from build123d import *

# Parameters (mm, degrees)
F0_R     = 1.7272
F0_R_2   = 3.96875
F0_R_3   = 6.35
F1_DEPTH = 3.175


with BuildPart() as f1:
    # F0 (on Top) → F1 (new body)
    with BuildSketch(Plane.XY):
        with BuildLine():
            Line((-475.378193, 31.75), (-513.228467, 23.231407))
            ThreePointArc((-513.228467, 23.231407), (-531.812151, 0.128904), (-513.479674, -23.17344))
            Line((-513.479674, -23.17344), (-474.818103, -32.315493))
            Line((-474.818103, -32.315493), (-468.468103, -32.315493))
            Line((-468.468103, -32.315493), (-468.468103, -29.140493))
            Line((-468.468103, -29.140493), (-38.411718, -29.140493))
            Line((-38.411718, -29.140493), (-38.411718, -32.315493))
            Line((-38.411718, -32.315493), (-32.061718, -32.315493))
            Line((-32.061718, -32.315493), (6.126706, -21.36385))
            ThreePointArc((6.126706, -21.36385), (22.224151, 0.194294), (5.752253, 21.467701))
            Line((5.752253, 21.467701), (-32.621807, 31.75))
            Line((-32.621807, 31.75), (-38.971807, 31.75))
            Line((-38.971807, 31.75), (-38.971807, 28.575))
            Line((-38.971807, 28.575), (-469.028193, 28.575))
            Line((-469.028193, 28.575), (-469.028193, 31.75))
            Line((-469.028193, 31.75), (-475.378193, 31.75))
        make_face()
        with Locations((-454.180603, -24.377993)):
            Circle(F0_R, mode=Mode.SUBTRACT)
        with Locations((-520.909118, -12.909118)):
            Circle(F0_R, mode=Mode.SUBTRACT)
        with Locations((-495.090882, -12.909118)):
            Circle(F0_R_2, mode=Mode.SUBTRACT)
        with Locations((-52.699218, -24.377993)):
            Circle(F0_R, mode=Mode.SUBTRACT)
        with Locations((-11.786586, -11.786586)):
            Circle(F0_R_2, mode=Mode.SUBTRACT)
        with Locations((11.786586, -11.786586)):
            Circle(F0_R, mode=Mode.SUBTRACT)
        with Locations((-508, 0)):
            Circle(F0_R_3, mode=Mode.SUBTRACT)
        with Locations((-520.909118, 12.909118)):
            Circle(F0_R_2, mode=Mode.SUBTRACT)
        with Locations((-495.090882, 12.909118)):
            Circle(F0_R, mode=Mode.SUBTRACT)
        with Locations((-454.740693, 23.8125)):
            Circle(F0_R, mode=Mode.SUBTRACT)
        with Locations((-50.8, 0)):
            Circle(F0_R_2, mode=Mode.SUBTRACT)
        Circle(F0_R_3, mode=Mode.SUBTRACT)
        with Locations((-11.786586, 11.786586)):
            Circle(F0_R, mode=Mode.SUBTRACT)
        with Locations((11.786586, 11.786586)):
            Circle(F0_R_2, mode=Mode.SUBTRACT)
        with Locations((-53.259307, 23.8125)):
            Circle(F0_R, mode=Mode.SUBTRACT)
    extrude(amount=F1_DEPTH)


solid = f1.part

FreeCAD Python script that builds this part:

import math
import FreeCAD as App
import Part
import Sketcher

V = App.Vector
Q = App.Units.Quantity

doc = App.newDocument("Part")
body = doc.addObject("PartDesign::Body", "Body")

sketch1 = doc.addObject("Sketcher::SketchObject", "Sketch")
body.addObject(sketch1)
sketch1.AttachmentSupport = (doc.XY_Plane, [""])
sketch1.MapMode = "FlatFace"
sketch1.addGeometry([
    Part.LineSegment(V(-475.4, 31.8, 0), V(-513.2, 23.2, 0)),
    Part.ArcOfCircle(Part.Circle(V(-508, 0, 0), V(0, 0, 1), 23.8), math.radians(103), math.radians(257)),
    Part.LineSegment(V(-513.5, -23.2, 0), V(-474.8, -32.3, 0)),
    Part.LineSegment(V(-474.8, -32.3, 0), V(-468.5, -32.3, 0)),
    Part.LineSegment(V(-468.5, -32.3, 0), V(-468.5, -29.1, 0)),
    Part.LineSegment(V(-468.5, -29.1, 0), V(-38.4, -29.1, 0)),
    Part.LineSegment(V(-38.4, -29.1, 0), V(-38.4, -32.3, 0)),
    Part.LineSegment(V(-38.4, -32.3, 0), V(-32.1, -32.3, 0)),
    Part.LineSegment(V(-32.1, -32.3, 0), V(6.1, -21.4, 0)),
    Part.ArcOfCircle(Part.Circle(V(0, 0, 0), V(0, 0, 1), 22.2), math.radians(-74), math.radians(75)),
    Part.LineSegment(V(5.8, 21.5, 0), V(-32.6, 31.8, 0)),
    Part.LineSegment(V(-32.6, 31.8, 0), V(-39, 31.8, 0)),
    Part.LineSegment(V(-39, 31.8, 0), V(-39, 28.6, 0)),
    Part.LineSegment(V(-39, 28.6, 0), V(-469, 28.6, 0)),
    Part.LineSegment(V(-469, 28.6, 0), V(-469, 31.8, 0)),
    Part.LineSegment(V(-469, 31.8, 0), V(-475.4, 31.8, 0)),
    Part.Circle(V(-454.2, -24.4, 0), V(0, 0, 1), 1.7),
    Part.Circle(V(-520.9, -12.9, 0), V(0, 0, 1), 1.7),
    Part.Circle(V(-495.1, -12.9, 0), V(0, 0, 1), 4),
    Part.Circle(V(-52.7, -24.4, 0), V(0, 0, 1), 1.7),
    Part.Circle(V(-11.8, -11.8, 0), V(0, 0, 1), 4),
    Part.Circle(V(11.8, -11.8, 0), V(0, 0, 1), 1.7),
    Part.Circle(V(-508, 0, 0), V(0, 0, 1), 6.3),
    Part.Circle(V(-520.9, 12.9, 0), V(0, 0, 1), 4),
    Part.Circle(V(-495.1, 12.9, 0), V(0, 0, 1), 1.7),
    Part.Circle(V(-454.7, 23.8, 0), V(0, 0, 1), 1.7),
    Part.Circle(V(-50.8, 0, 0), V(0, 0, 1), 4),
    Part.Circle(V(0, 0, 0), V(0, 0, 1), 6.3),
    Part.Circle(V(-11.8, 11.8, 0), V(0, 0, 1), 1.7),
    Part.Circle(V(11.8, 11.8, 0), V(0, 0, 1), 4),
    Part.Circle(V(-53.3, 23.8, 0), V(0, 0, 1), 1.7),
], False)
sketch1.addConstraint([
    Sketcher.Constraint("Tangent", 0, 2, 1, 1),
    Sketcher.Constraint("Tangent", 1, 2, 2, 1),
    Sketcher.Constraint("Coincident", 2, 2, 3, 1),
    Sketcher.Constraint("Coincident", 3, 2, 4, 1),
    Sketcher.Constraint("Coincident", 4, 2, 5, 1),
    Sketcher.Constraint("Coincident", 5, 2, 6, 1),
    Sketcher.Constraint("Coincident", 6, 2, 7, 1),
    Sketcher.Constraint("Coincident", 7, 2, 8, 1),
    Sketcher.Constraint("Tangent", 8, 2, 9, 1),
    Sketcher.Constraint("Tangent", 9, 2, 10, 1),
    Sketcher.Constraint("Coincident", 10, 2, 11, 1),
    Sketcher.Constraint("Coincident", 11, 2, 12, 1),
    Sketcher.Constraint("Coincident", 12, 2, 13, 1),
    Sketcher.Constraint("Coincident", 13, 2, 14, 1),
    Sketcher.Constraint("Coincident", 14, 2, 15, 1),
    Sketcher.Constraint("Coincident", 15, 2, 0, 1),
    Sketcher.Constraint("Horizontal", 3),
    Sketcher.Constraint("Vertical", 4),
    Sketcher.Constraint("Horizontal", 5),
    Sketcher.Constraint("Vertical", 6),
    Sketcher.Constraint("Horizontal", 7),
    Sketcher.Constraint("Horizontal", 11),
    Sketcher.Constraint("Vertical", 12),
    Sketcher.Constraint("Horizontal", 13),
    Sketcher.Constraint("Vertical", 14),
    Sketcher.Constraint("Horizontal", 15),
    Sketcher.Constraint("Coincident", 9, 3, -1, 1),
    Sketcher.Constraint("Coincident", 27, 3, -1, 1),
    Sketcher.Constraint("Coincident", 22, 3, 1, 3),
    Sketcher.Constraint("Equal", 16, 17),
    Sketcher.Constraint("Equal", 17, 19),
    Sketcher.Constraint("Equal", 18, 20),
    Sketcher.Constraint("Equal", 19, 21),
    Sketcher.Constraint("Equal", 20, 23),
    Sketcher.Constraint("Equal", 21, 24),
    Sketcher.Constraint("Equal", 24, 25),
    Sketcher.Constraint("Equal", 23, 26),
    Sketcher.Constraint("Equal", 22, 27),
    Sketcher.Constraint("Equal", 25, 28),
    Sketcher.Constraint("Equal", 26, 29),
    Sketcher.Constraint("Equal", 28, 30),
    Sketcher.Constraint("Symmetric", 21, 3, 28, 3, -1, 1),
    Sketcher.Constraint("Symmetric", 20, 3, 29, 3, -1, 1),
    Sketcher.Constraint("Symmetric", 20, 3, 21, 3, -2),
    Sketcher.Constraint("Symmetric", 17, 3, 23, 3, -1),
    Sketcher.Constraint("Symmetric", 18, 3, 24, 3, -1),
    Sketcher.Constraint("PointOnObject", 1, 3, -1),
    Sketcher.Constraint("PointOnObject", 26, 3, -1),
    Sketcher.Constraint("Horizontal", 17, 3, 18, 3),
    Sketcher.Constraint("Horizontal", 16, 3, 19, 3),
    Sketcher.Constraint("Horizontal", 25, 3, 30, 3),
    Sketcher.Constraint("Horizontal", 3, 2, 6, 2),
    Sketcher.Constraint("Horizontal", 11, 2, 14, 2),
    Sketcher.Constraint("Equal", 3, 7),
    Sketcher.Constraint("Equal", 7, 11),
    Sketcher.Constraint("Equal", 5, 13),
    Sketcher.Constraint("Equal", 11, 15),
    Sketcher.Constraint("Equal", 6, 12),
    Sketcher.Constraint("Equal", 2, 8),
    Sketcher.Constraint("Equal", 8, 10),
    Sketcher.Constraint("Diameter", 22, Q("0.5 in")),
    Sketcher.Constraint("Diameter", 16, Q("0.136 in")),
    Sketcher.Constraint("Diameter", 18, Q("0.3125 in")),
    Sketcher.Constraint("DistanceX", 1, 3, -1, 1, Q("20 in")),
    Sketcher.Constraint("DistanceX", 26, 3, -1, 1, Q("2 in")),
    Sketcher.Constraint("Angle", 10, Q("164.999999 deg")),
    Sketcher.Constraint("Radius", 1, Q("0.9375 in")),
    Sketcher.Constraint("Radius", 9, Q("0.875 in")),
    Sketcher.Constraint("DistanceX", 3, 1, 3, 2, Q("0.25 in")),
    Sketcher.Constraint("DistanceY", 4, 1, 4, 2, Q("0.125 in")),
    Sketcher.Constraint("DistanceY", -1, 1, 10, 2, Q("1.25 in")),
    Sketcher.Constraint("DistanceY", -1, 1, 25, 3, Q("0.9375 in")),
    Sketcher.Constraint("DistanceX", 2, 2, 16, 3, Q("0.8125 in")),
    Sketcher.Constraint("DistanceY", 2, 2, 16, 3, Q("0.3125 in")),
    Sketcher.Constraint("DistanceX", 19, 3, 5, 2, Q("0.5625 in")),
    Sketcher.Constraint("DistanceX", 30, 3, 10, 2, Q("0.8125 in")),
    Sketcher.Constraint("DistanceX", 13, 2, 25, 3, Q("0.5625 in")),
    Sketcher.Constraint("DistanceX", 17, 3, 19, 3, Q("468.2099 mm")),
    Sketcher.Constraint("Distance", 0, Q("38.797032 mm")),
    Sketcher.Constraint("DistanceX", 18, 3, -1, 1, Q("495.090882 mm")),
    Sketcher.Constraint("DistanceY", 18, 3, 20, 3, Q("1.122532 mm")),
    Sketcher.Constraint("DistanceX", 20, 3, 21, 3, Q("23.573172 mm")),
    Sketcher.Constraint("DistanceY", 1, 3, 23, 3, Q("12.909118 mm")),
])
pad1 = doc.addObject("PartDesign::Pad", "Pad")
body.addObject(pad1)
pad1.Profile = sketch1
pad1.Length = Q("0.125 in")

doc.recompute()
